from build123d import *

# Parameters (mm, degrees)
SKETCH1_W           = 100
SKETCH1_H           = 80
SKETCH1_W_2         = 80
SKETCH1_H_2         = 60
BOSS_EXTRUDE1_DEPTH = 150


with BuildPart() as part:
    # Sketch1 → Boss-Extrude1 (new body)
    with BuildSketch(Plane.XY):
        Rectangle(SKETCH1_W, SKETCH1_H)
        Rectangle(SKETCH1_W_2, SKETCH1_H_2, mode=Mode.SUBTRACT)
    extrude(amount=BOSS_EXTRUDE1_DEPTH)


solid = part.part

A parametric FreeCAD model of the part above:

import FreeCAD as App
import Part
import Sketcher
from FreeCAD import Vector
Q = App.Units.Quantity

doc = App.newDocument("Part")
params = doc.addObject("Spreadsheet::Sheet", "Params")
for row, (alias, value) in enumerate([
    ("sketch1_width", "100 mm"),
    ("sketch1_width2", "80 mm"),
    ("sketch1_height", "60 mm"),
    ("pad1_length", "150 mm"),
], start=1):
    params.set(f"A{row}", alias)
    params.set(f"B{row}", "=" + value)
    params.setAlias(f"B{row}", alias)

body = doc.addObject("PartDesign::Body", "Body")

# Sketch on XY plane
sketch1 = body.newObject("Sketcher::SketchObject", "Sketch")
sketch1.AttachmentSupport = (doc.getObject("XY_Plane"), [""])
sketch1.MapMode = "FlatFace"
sketch1.addGeometry([
    Part.LineSegment(Vector(-50, 40, 0), Vector(-50, -40, 0)),  # 0
    Part.LineSegment(Vector(-50, -40, 0), Vector(50, -40, 0)),  # 1
    Part.LineSegment(Vector(50, -40, 0), Vector(50, 40, 0)),  # 2
    Part.LineSegment(Vector(50, 40, 0), Vector(-50, 40, 0)),  # 3
    Part.LineSegment(Vector(40, -30, 0), Vector(-40, -30, 0)),  # 4
    Part.LineSegment(Vector(-40, -30, 0), Vector(-40, 30, 0)),  # 5
    Part.LineSegment(Vector(-40, 30, 0), Vector(40, 30, 0)),  # 6
    Part.LineSegment(Vector(40, 30, 0), Vector(40, -30, 0)),  # 7
], False)
sketch1.addConstraint([
    Sketcher.Constraint("Coincident", 0, 2, 1, 1),
    Sketcher.Constraint("Coincident", 1, 2, 2, 1),
    Sketcher.Constraint("Coincident", 2, 2, 3, 1),
    Sketcher.Constraint("Coincident", 3, 2, 0, 1),
    Sketcher.Constraint("Coincident", 4, 2, 5, 1),
    Sketcher.Constraint("Coincident", 5, 2, 6, 1),
    Sketcher.Constraint("Coincident", 6, 2, 7, 1),
    Sketcher.Constraint("Coincident", 7, 2, 4, 1),
    Sketcher.Constraint("Vertical", 0),
    Sketcher.Constraint("Horizontal", 1),
    Sketcher.Constraint("Vertical", 2),
    Sketcher.Constraint("Horizontal", 3),
    Sketcher.Constraint("Horizontal", 4),
    Sketcher.Constraint("Vertical", 5),
    Sketcher.Constraint("Horizontal", 6),
    Sketcher.Constraint("Vertical", 7),
    Sketcher.Constraint("Symmetric", 0, 2, 2, 2, -1, 1),
    Sketcher.Constraint("Symmetric", 4, 2, 6, 2, -1, 1),
    Sketcher.Constraint("Equal", 6, 0),
    Sketcher.Constraint("DistanceX", 1, 1, 1, 2, Q("100 mm")),
    Sketcher.Constraint("DistanceX", 4, 2, 4, 1, Q("80 mm")),
    Sketcher.Constraint("DistanceY", 5, 1, 5, 2, Q("60 mm")),
])
sketch1.setExpression("Constraints[19]", "Params.sketch1_width")
sketch1.setExpression("Constraints[20]", "Params.sketch1_width2")
sketch1.setExpression("Constraints[21]", "Params.sketch1_height")
pad1 = body.newObject("PartDesign::Pad", "Pad")
pad1.Profile = sketch1
pad1.setExpression("Length", "Params.pad1_length")

doc.recompute()
